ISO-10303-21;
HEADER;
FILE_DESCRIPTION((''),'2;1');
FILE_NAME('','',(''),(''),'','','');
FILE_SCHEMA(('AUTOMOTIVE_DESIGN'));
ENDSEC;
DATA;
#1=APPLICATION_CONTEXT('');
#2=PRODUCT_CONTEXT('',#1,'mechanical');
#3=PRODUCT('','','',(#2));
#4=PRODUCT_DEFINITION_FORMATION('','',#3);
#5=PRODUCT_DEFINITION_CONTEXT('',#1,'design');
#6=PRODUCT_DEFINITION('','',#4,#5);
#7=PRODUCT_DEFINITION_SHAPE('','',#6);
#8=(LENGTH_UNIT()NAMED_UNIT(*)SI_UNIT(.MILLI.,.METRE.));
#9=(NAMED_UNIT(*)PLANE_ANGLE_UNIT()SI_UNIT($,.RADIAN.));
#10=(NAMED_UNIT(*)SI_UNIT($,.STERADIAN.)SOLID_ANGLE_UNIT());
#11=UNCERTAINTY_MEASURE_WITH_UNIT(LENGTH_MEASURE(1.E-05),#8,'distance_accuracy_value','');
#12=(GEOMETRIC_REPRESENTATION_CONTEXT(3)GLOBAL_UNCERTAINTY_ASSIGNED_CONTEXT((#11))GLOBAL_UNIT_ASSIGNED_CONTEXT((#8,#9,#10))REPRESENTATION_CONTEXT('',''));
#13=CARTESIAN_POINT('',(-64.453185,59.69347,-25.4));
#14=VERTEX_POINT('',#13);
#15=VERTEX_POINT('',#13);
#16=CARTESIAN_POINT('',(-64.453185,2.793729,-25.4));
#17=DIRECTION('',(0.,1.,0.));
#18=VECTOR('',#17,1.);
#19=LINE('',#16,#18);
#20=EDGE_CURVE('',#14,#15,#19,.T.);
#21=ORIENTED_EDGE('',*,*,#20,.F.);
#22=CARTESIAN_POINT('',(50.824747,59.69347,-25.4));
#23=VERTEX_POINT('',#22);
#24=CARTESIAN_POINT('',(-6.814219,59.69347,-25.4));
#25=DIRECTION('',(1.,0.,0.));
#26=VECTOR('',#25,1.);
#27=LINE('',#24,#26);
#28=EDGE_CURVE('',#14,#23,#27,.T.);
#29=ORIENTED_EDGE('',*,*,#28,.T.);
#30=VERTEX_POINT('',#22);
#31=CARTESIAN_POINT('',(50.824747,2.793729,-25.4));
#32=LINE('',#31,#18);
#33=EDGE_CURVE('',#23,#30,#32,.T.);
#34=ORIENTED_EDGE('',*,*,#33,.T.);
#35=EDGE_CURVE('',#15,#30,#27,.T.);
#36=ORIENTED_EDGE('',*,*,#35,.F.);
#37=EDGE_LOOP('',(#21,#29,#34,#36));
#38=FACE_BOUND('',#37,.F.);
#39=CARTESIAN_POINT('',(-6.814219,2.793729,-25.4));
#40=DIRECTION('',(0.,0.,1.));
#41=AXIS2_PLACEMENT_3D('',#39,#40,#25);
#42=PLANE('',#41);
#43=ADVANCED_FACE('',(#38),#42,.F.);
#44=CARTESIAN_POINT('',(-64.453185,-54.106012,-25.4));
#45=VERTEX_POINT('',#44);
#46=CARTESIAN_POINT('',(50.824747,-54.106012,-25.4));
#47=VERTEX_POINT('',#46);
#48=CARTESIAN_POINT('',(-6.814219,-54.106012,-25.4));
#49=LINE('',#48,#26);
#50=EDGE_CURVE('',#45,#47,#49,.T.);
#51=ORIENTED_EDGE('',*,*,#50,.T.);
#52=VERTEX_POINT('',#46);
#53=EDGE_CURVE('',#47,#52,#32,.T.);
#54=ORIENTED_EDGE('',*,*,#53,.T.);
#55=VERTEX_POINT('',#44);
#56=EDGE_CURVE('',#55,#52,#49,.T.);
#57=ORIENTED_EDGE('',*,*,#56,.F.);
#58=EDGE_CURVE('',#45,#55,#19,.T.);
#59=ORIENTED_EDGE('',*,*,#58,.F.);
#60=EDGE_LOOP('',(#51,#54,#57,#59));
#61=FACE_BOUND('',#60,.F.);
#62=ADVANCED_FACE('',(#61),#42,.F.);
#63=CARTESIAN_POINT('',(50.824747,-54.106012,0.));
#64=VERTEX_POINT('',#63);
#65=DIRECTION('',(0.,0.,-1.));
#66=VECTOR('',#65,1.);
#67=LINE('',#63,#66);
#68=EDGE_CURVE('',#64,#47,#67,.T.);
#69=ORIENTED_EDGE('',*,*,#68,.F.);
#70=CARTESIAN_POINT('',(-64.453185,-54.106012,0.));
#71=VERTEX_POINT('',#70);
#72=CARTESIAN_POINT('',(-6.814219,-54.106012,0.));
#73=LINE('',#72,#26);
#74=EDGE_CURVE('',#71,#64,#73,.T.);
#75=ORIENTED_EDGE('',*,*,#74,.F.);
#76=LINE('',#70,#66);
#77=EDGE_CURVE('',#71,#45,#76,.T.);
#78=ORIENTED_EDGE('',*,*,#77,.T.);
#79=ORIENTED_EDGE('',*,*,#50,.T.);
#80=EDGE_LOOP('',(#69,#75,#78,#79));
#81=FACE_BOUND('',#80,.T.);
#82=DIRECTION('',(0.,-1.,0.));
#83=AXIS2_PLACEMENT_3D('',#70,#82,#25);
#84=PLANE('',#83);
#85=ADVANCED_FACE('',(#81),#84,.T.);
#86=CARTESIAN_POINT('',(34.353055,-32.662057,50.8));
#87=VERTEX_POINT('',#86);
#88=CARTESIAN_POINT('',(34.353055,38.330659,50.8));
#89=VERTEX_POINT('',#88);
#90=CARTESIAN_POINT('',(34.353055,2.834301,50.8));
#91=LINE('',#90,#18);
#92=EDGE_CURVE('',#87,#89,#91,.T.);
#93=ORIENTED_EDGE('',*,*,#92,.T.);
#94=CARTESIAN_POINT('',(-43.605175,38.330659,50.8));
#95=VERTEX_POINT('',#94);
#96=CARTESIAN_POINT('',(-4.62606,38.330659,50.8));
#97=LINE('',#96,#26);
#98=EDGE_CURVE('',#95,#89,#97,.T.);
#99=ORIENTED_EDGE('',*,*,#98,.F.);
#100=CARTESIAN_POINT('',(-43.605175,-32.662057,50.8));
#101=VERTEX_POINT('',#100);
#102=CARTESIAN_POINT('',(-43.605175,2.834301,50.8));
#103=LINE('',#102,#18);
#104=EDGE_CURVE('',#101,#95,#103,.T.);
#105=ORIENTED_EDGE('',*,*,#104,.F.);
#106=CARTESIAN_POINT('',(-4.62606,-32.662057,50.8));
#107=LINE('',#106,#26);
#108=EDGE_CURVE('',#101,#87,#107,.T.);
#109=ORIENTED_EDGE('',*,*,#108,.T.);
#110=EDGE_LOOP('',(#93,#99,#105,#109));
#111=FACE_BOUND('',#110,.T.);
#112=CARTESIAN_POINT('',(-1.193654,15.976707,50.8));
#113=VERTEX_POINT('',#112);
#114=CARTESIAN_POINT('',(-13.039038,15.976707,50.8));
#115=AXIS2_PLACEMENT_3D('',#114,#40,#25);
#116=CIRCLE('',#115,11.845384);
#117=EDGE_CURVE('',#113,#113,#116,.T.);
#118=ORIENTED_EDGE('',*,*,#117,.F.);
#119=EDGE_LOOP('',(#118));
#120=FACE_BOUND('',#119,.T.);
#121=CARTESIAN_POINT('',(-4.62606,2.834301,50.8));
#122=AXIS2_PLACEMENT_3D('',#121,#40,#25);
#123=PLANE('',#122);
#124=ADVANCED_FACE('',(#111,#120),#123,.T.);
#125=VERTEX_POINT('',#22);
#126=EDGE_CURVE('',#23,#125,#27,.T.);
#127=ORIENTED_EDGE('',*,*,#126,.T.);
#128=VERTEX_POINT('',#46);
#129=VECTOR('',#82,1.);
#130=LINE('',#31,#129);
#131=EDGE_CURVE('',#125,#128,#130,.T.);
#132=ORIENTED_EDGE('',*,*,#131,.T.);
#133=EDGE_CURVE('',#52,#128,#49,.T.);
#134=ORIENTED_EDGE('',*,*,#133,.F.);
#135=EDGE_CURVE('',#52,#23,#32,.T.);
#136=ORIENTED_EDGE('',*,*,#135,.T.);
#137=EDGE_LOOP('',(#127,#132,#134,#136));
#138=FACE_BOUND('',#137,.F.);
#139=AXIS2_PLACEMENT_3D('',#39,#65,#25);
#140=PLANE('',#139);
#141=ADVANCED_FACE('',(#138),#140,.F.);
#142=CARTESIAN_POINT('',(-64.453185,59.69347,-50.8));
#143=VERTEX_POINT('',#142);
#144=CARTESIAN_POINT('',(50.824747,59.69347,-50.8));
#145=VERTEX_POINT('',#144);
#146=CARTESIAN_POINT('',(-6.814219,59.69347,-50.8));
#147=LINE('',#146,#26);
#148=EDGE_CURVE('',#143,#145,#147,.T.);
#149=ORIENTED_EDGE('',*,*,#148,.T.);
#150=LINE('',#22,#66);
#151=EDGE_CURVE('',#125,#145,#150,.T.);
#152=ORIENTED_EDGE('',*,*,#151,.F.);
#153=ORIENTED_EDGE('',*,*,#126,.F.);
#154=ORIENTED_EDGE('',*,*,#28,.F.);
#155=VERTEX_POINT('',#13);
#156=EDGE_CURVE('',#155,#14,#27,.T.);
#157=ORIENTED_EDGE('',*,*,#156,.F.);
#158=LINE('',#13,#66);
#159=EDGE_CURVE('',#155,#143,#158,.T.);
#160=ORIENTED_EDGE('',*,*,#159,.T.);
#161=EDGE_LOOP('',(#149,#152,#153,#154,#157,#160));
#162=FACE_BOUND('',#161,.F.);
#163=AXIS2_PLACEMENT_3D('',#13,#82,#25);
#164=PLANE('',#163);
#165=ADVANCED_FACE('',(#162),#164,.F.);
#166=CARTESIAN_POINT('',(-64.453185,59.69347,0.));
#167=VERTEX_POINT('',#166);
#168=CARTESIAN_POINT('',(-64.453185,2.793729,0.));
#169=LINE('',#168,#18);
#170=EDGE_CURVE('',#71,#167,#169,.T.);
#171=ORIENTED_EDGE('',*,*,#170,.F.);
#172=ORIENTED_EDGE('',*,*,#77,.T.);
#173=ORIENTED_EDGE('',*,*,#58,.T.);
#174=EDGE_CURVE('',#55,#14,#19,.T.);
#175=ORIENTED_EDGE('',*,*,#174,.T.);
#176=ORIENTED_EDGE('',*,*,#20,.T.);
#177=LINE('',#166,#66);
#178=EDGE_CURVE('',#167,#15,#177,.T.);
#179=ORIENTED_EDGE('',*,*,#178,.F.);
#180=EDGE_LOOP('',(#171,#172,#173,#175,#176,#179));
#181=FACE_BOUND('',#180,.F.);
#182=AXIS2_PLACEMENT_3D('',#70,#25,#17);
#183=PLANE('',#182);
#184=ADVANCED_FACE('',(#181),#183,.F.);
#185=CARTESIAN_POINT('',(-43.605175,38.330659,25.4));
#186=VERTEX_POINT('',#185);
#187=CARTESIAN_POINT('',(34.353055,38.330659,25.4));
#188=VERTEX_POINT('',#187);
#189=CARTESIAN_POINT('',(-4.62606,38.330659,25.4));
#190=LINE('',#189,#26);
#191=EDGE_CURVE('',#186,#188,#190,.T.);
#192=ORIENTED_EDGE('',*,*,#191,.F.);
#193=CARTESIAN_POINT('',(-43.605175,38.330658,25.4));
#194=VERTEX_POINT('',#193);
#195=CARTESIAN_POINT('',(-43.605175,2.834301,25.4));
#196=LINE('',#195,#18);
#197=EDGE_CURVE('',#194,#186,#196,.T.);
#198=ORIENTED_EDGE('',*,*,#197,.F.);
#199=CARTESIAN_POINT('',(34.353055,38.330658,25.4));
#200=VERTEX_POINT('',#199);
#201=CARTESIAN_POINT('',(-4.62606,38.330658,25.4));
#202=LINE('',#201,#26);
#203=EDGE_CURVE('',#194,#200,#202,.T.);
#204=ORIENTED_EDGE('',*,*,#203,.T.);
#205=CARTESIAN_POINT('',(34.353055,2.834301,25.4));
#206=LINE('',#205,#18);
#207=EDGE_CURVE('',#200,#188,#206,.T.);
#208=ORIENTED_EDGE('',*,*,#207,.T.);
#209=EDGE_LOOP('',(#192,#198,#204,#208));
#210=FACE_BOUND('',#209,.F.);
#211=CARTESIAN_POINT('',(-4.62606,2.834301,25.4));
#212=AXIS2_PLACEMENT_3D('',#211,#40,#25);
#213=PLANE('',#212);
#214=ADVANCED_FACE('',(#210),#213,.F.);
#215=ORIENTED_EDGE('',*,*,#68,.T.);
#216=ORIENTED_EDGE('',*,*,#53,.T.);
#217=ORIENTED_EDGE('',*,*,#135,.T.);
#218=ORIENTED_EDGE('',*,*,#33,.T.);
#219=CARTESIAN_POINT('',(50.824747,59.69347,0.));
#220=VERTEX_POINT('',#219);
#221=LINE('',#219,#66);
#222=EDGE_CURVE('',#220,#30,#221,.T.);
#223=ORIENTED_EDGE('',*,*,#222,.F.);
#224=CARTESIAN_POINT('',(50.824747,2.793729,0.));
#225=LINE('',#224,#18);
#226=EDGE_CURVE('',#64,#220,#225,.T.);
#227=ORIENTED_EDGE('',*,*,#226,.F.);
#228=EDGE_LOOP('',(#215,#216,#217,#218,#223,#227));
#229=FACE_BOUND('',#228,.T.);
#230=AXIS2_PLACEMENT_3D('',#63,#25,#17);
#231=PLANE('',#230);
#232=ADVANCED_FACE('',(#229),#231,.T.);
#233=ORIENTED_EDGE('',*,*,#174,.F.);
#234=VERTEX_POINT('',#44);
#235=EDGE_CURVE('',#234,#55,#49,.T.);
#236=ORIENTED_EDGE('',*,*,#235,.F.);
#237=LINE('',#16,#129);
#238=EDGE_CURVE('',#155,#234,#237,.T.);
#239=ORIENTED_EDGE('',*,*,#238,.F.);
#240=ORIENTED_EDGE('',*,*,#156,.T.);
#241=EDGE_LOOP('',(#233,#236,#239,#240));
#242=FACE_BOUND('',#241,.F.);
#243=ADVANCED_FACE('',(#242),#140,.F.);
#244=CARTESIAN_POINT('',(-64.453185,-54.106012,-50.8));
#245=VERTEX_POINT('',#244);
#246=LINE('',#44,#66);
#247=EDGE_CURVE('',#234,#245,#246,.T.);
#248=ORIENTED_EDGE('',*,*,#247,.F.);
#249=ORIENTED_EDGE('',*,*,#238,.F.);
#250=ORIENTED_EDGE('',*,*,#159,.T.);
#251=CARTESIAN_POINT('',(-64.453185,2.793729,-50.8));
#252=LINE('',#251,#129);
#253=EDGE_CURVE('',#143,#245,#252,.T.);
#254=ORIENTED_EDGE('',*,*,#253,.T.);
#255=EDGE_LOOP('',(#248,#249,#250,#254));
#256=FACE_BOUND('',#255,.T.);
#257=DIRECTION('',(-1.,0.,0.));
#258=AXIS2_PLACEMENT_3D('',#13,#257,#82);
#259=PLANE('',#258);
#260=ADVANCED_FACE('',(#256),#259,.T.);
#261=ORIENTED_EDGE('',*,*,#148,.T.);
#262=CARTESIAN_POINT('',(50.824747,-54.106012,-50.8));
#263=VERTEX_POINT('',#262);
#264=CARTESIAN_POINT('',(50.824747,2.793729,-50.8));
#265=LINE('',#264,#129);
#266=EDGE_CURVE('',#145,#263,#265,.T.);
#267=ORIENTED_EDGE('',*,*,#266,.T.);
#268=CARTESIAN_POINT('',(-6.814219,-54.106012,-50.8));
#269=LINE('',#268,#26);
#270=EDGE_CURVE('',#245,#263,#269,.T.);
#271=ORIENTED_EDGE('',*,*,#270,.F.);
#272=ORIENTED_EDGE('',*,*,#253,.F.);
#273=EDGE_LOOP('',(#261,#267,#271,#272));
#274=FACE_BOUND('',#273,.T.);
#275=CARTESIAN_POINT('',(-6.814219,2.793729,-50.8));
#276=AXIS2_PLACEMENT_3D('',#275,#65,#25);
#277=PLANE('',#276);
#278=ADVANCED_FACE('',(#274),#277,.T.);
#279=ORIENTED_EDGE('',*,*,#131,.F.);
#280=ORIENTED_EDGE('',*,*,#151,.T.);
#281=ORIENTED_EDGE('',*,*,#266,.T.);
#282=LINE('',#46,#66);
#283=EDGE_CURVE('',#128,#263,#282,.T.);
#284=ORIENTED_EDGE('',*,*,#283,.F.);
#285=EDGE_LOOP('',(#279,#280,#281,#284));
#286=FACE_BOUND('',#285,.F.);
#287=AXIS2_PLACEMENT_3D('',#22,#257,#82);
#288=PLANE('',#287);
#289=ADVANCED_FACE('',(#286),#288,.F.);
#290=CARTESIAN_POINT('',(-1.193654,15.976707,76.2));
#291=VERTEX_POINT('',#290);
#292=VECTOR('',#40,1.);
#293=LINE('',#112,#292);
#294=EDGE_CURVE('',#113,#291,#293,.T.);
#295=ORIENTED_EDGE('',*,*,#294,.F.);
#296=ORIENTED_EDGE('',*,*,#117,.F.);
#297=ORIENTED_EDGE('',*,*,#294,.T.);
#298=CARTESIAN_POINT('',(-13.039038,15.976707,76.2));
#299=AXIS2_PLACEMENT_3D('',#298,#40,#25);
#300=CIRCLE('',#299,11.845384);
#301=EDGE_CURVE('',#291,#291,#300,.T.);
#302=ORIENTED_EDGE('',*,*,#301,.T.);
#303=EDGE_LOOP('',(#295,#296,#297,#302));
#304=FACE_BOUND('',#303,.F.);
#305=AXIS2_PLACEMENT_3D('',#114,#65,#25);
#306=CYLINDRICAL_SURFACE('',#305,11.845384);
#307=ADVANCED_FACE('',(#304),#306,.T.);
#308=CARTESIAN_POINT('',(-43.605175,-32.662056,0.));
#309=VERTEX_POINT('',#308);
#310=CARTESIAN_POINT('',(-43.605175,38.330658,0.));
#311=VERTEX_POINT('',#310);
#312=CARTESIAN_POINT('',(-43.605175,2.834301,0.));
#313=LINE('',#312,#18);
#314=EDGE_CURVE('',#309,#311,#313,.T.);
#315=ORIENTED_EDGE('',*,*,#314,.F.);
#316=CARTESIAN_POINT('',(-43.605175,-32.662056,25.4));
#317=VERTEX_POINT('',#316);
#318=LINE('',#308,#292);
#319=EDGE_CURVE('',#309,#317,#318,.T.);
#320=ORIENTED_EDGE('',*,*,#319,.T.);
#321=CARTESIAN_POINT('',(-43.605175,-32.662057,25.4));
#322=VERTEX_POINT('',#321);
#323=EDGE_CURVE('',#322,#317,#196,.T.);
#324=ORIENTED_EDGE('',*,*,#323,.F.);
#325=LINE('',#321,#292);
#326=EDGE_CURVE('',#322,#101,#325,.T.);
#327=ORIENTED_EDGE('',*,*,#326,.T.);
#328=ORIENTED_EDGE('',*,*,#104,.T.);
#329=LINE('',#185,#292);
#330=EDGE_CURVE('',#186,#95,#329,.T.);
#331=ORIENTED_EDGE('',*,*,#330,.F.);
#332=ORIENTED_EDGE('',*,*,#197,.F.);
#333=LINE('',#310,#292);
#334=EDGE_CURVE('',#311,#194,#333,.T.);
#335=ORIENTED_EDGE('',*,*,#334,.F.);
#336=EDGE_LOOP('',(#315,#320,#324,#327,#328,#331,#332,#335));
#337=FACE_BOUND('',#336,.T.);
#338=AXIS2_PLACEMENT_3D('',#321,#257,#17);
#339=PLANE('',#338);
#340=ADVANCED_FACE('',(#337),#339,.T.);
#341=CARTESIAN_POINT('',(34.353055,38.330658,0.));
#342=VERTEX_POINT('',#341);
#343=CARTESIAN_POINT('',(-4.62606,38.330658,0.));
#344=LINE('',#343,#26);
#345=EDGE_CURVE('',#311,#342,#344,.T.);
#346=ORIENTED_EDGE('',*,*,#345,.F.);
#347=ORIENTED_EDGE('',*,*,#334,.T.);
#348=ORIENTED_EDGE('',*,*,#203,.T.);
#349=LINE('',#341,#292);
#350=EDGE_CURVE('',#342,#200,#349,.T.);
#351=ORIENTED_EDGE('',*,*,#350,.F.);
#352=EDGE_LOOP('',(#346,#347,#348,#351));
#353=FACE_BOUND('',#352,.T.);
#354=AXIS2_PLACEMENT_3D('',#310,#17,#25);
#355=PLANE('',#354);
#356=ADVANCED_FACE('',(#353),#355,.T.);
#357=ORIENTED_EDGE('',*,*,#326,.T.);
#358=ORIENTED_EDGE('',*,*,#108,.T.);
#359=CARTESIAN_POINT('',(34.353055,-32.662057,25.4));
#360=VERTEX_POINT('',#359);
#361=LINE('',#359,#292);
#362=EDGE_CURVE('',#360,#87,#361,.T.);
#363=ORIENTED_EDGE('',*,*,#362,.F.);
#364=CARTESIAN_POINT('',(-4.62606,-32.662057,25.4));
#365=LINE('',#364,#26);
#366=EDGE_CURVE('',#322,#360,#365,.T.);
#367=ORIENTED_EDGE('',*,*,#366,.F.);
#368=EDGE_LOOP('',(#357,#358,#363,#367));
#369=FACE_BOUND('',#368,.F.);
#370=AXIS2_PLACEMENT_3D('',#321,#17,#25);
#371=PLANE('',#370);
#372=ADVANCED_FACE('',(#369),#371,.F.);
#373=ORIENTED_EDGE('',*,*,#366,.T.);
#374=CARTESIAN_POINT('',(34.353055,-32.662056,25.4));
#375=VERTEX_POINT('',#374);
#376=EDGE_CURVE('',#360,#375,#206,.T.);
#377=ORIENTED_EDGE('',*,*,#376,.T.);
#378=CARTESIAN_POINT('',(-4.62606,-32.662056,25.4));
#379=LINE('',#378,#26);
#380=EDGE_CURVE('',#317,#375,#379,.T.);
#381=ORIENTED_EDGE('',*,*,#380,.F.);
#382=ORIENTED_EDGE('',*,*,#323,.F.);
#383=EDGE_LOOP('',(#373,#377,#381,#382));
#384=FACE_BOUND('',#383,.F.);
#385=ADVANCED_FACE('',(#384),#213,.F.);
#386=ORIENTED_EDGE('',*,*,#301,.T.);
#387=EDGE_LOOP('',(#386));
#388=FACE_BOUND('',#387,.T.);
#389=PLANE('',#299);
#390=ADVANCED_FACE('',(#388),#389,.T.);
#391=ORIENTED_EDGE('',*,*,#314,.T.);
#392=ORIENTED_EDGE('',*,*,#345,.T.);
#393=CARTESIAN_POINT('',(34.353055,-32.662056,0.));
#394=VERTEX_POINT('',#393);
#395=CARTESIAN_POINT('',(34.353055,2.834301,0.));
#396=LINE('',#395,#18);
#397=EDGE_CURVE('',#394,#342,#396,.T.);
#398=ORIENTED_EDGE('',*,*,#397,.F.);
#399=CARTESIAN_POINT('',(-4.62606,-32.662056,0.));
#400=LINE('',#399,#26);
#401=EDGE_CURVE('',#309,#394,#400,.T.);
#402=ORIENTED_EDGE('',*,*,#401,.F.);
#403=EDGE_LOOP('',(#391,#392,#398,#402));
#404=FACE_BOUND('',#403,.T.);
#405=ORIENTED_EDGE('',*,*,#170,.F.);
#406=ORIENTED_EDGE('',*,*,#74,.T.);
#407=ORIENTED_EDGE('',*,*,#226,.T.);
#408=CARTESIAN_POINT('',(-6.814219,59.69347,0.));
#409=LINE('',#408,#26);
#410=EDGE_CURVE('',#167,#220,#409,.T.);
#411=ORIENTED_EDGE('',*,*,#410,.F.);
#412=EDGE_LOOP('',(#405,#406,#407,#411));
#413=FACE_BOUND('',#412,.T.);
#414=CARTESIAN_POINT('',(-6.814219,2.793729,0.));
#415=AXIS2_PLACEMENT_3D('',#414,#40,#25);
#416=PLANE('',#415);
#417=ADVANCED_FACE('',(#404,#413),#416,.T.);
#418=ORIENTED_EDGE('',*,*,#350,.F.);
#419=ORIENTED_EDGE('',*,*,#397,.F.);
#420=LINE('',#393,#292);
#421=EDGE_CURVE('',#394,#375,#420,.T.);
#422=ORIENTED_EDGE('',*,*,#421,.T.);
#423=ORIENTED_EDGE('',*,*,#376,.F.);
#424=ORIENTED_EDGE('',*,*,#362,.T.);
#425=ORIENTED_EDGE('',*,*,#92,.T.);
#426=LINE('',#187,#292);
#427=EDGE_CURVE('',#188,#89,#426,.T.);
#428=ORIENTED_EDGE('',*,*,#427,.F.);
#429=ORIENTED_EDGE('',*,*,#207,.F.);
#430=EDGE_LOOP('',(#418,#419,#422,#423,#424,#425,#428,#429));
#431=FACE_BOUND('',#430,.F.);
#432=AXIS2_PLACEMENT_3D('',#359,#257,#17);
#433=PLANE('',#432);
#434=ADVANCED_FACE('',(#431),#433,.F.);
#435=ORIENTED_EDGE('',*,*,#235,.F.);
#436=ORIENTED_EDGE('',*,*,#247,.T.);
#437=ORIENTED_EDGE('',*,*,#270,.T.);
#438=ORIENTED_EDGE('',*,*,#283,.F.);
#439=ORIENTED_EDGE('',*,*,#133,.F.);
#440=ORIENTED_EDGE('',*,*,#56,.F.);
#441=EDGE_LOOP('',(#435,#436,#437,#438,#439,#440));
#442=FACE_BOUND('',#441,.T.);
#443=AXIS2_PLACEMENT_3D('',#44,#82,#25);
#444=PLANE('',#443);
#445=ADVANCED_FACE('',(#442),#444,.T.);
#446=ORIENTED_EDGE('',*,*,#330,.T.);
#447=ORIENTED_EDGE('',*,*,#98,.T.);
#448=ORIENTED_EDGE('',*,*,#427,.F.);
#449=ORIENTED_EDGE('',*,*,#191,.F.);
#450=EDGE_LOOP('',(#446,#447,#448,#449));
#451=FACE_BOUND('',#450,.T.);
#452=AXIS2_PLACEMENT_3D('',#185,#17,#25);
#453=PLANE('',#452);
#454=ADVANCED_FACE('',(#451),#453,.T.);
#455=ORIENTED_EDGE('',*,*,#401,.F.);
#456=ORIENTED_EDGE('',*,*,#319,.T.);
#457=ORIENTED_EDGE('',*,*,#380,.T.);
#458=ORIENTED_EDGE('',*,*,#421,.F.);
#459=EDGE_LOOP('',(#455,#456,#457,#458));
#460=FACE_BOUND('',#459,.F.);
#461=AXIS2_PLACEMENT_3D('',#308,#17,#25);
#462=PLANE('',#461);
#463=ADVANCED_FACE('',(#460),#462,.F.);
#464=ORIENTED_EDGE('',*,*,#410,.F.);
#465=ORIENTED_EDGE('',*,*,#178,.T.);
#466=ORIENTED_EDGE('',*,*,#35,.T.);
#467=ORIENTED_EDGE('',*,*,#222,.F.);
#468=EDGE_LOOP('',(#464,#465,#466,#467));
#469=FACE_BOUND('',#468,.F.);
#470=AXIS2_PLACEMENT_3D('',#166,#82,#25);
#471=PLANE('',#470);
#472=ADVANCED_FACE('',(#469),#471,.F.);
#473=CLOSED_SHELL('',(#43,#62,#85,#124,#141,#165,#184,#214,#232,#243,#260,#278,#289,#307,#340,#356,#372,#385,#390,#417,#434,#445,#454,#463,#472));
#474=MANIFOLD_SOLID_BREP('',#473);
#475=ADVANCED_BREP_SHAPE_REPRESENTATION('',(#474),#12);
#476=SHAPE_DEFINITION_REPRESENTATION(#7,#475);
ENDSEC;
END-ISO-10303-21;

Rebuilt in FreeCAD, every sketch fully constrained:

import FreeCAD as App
import Part
import Sketcher

V = App.Vector
Q = App.Units.Quantity


def add_polygon(sketch, points):
    """Adds a closed chain of lines whose ends are joined by coincident constraints."""
    first, n = sketch.GeometryCount, len(points)
    for a, b in zip(points, points[1:] + points[:1]):
        sketch.addGeometry(Part.LineSegment(App.Vector(*a, 0), App.Vector(*b, 0)), False)
    for i in range(n):
        sketch.addConstraint(Sketcher.Constraint("Coincident", first + i, 2, first + (i + 1) % n, 1))

doc = App.newDocument("Part")
body = doc.addObject("PartDesign::Body", "Body")

# Sketch on XY plane
sketch1 = body.newObject("Sketcher::SketchObject", "Sketch")
sketch1.AttachmentSupport = (doc.getObject("XY_Plane"), [""])
sketch1.MapMode = "FlatFace"
add_polygon(sketch1, [(-64, 60), (-64, -54), (51, -54), (51, 60)])  # lines 0-3
sketch1.addConstraint([
    Sketcher.Constraint("Vertical", 0),
    Sketcher.Constraint("Horizontal", 1),
    Sketcher.Constraint("Vertical", 2),
    Sketcher.Constraint("Horizontal", 3),
    Sketcher.Constraint("DistanceX", 1, 1, 1, 2, 115.277931),
    Sketcher.Constraint("DistanceY", 0, 2, 0, 1, 113.799483),
    Sketcher.Constraint("DistanceY", -1, 1, 2, 2, 59.69347),
    Sketcher.Constraint("DistanceX", 0, 2, -1, 1, 64.453185),
])
pad1 = body.newObject("PartDesign::Pad", "Pad")
pad1.Profile = sketch1
pad1.Length = Q("1 in")
pad1.Reversed = True

# Sketch on XY plane
sketch2 = body.newObject("Sketcher::SketchObject", "Sketch001")
sketch2.AttachmentSupport = (doc.getObject("XY_Plane"), [""])
sketch2.MapMode = "FlatFace"
sketch2.AttachmentOffset = App.Placement(V(0, 0, -1 * 25.4), App.Rotation())
add_polygon(sketch2, [(-64, -54), (-64, 60), (51, 60), (51, -54)])  # lines 0-3
sketch2.addConstraint([
    Sketcher.Constraint("Vertical", 0),
    Sketcher.Constraint("Horizontal", 1),
    Sketcher.Constraint("Vertical", 2),
    Sketcher.Constraint("Horizontal", 3),
    Sketcher.Constraint("DistanceY", 0, 1, 0, 2, 113.799482),
    Sketcher.Constraint("DistanceX", 1, 1, 1, 2, 115.277932),
    Sketcher.Constraint("DistanceY", -1, 1, 0, 2, 59.69347),
    Sketcher.Constraint("DistanceX", 0, 2, -1, 1, 64.453185),
])
pad2 = body.newObject("PartDesign::Pad", "Pad001")
pad2.Profile = sketch2
pad2.Length = Q("1 in")
pad2.Reversed = True

# Sketch on XY plane
sketch3 = body.newObject("Sketcher::SketchObject", "Sketch002")
sketch3.AttachmentSupport = (doc.getObject("XY_Plane"), [""])
sketch3.MapMode = "FlatFace"
add_polygon(sketch3, [(-44, 38), (-44, -33), (34, -33), (34, 38)])  # lines 0-3
sketch3.addConstraint([
    Sketcher.Constraint("Vertical", 0),
    Sketcher.Constraint("Horizontal", 1),
    Sketcher.Constraint("Vertical", 2),
    Sketcher.Constraint("Horizontal", 3),
    Sketcher.Constraint("DistanceX", 1, 1, 1, 2, 77.95823),
    Sketcher.Constraint("DistanceY", 0, 2, 0, 1, 70.992715),
    Sketcher.Constraint("DistanceY", -1, 1, 2, 2, 38.330658),
    Sketcher.Constraint("DistanceX", 0, 2, -1, 1, 43.605175),
])
pad3 = body.newObject("PartDesign::Pad", "Pad002")
pad3.Profile = sketch3
pad3.Length = Q("1 in")

# Sketch on XY plane
sketch4 = body.newObject("Sketcher::SketchObject", "Sketch003")
sketch4.AttachmentSupport = (doc.getObject("XY_Plane"), [""])
sketch4.MapMode = "FlatFace"
sketch4.AttachmentOffset = App.Placement(V(0, 0, 1 * 25.4), App.Rotation())
add_polygon(sketch4, [(-44, 38), (-44, -33), (34, -33), (34, 38)])  # lines 0-3
sketch4.addConstraint([
    Sketcher.Constraint("Vertical", 0),
    Sketcher.Constraint("Horizontal", 1),
    Sketcher.Constraint("Vertical", 2),
    Sketcher.Constraint("Horizontal", 3),
    Sketcher.Constraint("DistanceX", 1, 1, 1, 2, 77.95823),
    Sketcher.Constraint("DistanceY", 0, 2, 0, 1, 70.992716),
    Sketcher.Constraint("DistanceY", -1, 1, 2, 2, 38.330659),
    Sketcher.Constraint("DistanceX", 0, 2, -1, 1, 43.605175),
])
pad4 = body.newObject("PartDesign::Pad", "Pad003")
pad4.Profile = sketch4
pad4.Length = Q("1 in")

# Sketch on XY plane
sketch5 = body.newObject("Sketcher::SketchObject", "Sketch004")
sketch5.AttachmentSupport = (doc.getObject("XY_Plane"), [""])
sketch5.MapMode = "FlatFace"
sketch5.AttachmentOffset = App.Placement(V(0, 0, 2 * 25.4), App.Rotation())
sketch5.addGeometry(Part.Circle(V(-13, 16, 0), V(0, 0, 1), 12), False)
sketch5.addConstraint([
    Sketcher.Constraint("Diameter", 0, 23.690768),
    Sketcher.Constraint("DistanceX", 0, 3, -1, 1, 13.039038),
    Sketcher.Constraint("DistanceY", -1, 1, 0, 3, 15.976707),
])
pad5 = body.newObject("PartDesign::Pad", "Pad004")
pad5.Profile = sketch5
pad5.Length = Q("1 in")

doc.recompute()
